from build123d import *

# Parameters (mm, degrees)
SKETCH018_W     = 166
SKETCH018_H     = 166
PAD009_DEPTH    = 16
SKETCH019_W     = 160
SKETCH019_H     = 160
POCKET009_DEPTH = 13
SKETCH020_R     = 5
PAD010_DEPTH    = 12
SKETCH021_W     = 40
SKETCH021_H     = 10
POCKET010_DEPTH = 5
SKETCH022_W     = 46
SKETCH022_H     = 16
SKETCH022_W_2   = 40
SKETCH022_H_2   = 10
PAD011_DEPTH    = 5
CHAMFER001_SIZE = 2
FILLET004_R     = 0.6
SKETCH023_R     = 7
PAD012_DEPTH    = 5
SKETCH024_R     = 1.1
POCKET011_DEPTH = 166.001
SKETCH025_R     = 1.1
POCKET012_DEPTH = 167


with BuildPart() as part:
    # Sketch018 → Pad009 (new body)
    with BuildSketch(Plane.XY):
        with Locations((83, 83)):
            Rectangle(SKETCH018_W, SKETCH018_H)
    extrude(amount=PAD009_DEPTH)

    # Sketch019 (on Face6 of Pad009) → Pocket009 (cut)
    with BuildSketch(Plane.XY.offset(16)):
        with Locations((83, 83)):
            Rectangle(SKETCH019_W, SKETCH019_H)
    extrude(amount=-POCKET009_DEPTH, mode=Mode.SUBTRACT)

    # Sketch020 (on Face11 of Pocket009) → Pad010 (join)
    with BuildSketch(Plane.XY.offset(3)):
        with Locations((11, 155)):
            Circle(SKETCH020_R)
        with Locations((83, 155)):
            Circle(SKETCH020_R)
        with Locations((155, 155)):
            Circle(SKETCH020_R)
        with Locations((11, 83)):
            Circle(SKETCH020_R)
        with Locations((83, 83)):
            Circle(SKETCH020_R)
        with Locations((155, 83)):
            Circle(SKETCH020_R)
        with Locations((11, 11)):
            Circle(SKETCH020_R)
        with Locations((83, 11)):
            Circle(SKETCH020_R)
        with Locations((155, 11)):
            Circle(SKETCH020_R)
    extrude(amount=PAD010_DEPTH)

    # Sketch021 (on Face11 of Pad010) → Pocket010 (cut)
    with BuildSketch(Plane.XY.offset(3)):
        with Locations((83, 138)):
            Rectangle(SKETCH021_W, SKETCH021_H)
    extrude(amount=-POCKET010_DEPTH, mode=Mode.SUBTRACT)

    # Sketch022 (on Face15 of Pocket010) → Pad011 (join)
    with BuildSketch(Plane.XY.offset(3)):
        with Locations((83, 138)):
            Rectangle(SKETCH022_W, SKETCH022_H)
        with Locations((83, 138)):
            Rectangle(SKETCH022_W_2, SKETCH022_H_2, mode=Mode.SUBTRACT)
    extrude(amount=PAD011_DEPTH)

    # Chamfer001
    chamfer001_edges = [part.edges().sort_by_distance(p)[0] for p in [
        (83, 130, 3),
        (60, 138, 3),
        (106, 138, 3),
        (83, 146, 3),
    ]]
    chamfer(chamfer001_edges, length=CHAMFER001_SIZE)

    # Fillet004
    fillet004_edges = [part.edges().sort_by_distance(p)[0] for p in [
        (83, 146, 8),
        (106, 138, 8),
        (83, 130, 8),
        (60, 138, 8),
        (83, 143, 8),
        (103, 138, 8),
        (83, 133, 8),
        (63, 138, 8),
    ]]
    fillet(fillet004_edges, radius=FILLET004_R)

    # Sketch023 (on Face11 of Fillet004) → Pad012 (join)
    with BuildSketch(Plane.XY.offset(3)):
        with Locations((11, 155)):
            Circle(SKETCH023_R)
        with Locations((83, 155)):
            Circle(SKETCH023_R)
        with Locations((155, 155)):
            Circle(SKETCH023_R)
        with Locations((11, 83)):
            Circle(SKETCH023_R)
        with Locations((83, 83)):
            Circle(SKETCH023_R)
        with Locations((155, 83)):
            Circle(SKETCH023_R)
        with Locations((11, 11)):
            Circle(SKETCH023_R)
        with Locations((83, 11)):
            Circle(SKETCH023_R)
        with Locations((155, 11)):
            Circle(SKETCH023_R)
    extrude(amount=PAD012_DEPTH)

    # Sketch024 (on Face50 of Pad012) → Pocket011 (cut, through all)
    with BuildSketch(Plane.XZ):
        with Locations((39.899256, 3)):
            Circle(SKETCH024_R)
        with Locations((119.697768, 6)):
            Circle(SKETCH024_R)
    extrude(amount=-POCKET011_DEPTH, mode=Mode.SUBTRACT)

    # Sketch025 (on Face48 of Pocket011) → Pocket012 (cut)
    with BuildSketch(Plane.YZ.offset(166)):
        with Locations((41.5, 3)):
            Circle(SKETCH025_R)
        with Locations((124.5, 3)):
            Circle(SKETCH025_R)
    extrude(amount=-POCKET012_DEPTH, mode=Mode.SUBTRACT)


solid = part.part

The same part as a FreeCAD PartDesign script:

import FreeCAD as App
import Part
import Sketcher
from FreeCAD import Vector
Q = App.Units.Quantity


def edges_at(feature, points):
    """Names of the edges that pass closest to the given points."""
    edges = feature.Shape.Edges
    near = lambda p: min(range(len(edges)), key=lambda i: edges[i].distToShape(Part.Vertex(*p))[0])
    return sorted({f"Edge{near(p) + 1}" for p in points})


def add_polygon(sketch, points):
    """Adds a closed chain of lines whose ends are joined by coincident constraints."""
    first, n = sketch.GeometryCount, len(points)
    for a, b in zip(points, points[1:] + points[:1]):
        sketch.addGeometry(Part.LineSegment(App.Vector(*a, 0), App.Vector(*b, 0)), False)
    for i in range(n):
        sketch.addConstraint(Sketcher.Constraint("Coincident", first + i, 2, first + (i + 1) % n, 1))

doc = App.newDocument("Part")
body = doc.addObject("PartDesign::Body", "Body")

# Sketch on XY plane
sketch1 = body.newObject("Sketcher::SketchObject", "Sketch")
sketch1.AttachmentSupport = (doc.getObject("XY_Plane"), [""])
sketch1.MapMode = "FlatFace"
add_polygon(sketch1, [(0, 166), (0, 0), (166, 0), (166, 166)])  # lines 0-3
sketch1.addConstraint(Sketcher.Constraint("Vertical", 0))
sketch1.addConstraint(Sketcher.Constraint("Horizontal", 1))
sketch1.addConstraint(Sketcher.Constraint("Vertical", 2))
sketch1.addConstraint(Sketcher.Constraint("Horizontal", 3))
sketch1.addConstraint(Sketcher.Constraint("Coincident", 0, 2, -1, 1))
sketch1.addConstraint(Sketcher.Constraint("Equal", 3, 0))
sketch1.addConstraint(Sketcher.Constraint("DistanceX", 1, 1, 1, 2, Q("166 mm")))
pad1 = body.newObject("PartDesign::Pad", "Pad")
pad1.Profile = sketch1
pad1.Length = 16

# Sketch on XY plane
sketch2 = body.newObject("Sketcher::SketchObject", "Sketch001")
sketch2.AttachmentSupport = (doc.getObject("XY_Plane"), [""])
sketch2.MapMode = "FlatFace"
sketch2.AttachmentOffset = App.Placement(Vector(0, 0, 16), App.Rotation())
add_polygon(sketch2, [(3, 163), (3, 3), (163, 3), (163, 163)])  # lines 0-3
sketch2.addConstraint(Sketcher.Constraint("Vertical", 0))
sketch2.addConstraint(Sketcher.Constraint("Horizontal", 1))
sketch2.addConstraint(Sketcher.Constraint("Vertical", 2))
sketch2.addConstraint(Sketcher.Constraint("Horizontal", 3))
sketch2.addConstraint(Sketcher.Constraint("Equal", 3, 0))
sketch2.addConstraint(Sketcher.Constraint("DistanceX", 1, 1, 1, 2, Q("160 mm")))
sketch2.addConstraint(Sketcher.Constraint("DistanceX", -1, 1, 0, 2, Q("3 mm")))
sketch2.addConstraint(Sketcher.Constraint("DistanceY", -1, 1, 0, 2, Q("3 mm")))
pocket1 = body.newObject("PartDesign::Pocket", "Pocket")
pocket1.Profile = sketch2
pocket1.Length = 13

# Sketch on XY plane
sketch3 = body.newObject("Sketcher::SketchObject", "Sketch002")
sketch3.AttachmentSupport = (doc.getObject("XY_Plane"), [""])
sketch3.MapMode = "FlatFace"
sketch3.AttachmentOffset = App.Placement(Vector(0, 0, 3), App.Rotation())
sketch3.addGeometry(Part.Circle(Vector(11, 155, 0), Vector(0, 0, 1), 5), False)
sketch3.addGeometry(Part.Circle(Vector(83, 155, 0), Vector(0, 0, 1), 5), False)
sketch3.addGeometry(Part.Circle(Vector(155, 155, 0), Vector(0, 0, 1), 5), False)
sketch3.addGeometry(Part.Circle(Vector(11, 83, 0), Vector(0, 0, 1), 5), False)
sketch3.addGeometry(Part.Circle(Vector(83, 83, 0), Vector(0, 0, 1), 5), False)
sketch3.addGeometry(Part.Circle(Vector(155, 83, 0), Vector(0, 0, 1), 5), False)
sketch3.addGeometry(Part.Circle(Vector(11, 11, 0), Vector(0, 0, 1), 5), False)
sketch3.addGeometry(Part.Circle(Vector(83, 11, 0), Vector(0, 0, 1), 5), False)
sketch3.addGeometry(Part.Circle(Vector(155, 11, 0), Vector(0, 0, 1), 5), False)
sketch3.addConstraint(Sketcher.Constraint("Equal", 0, 1))
sketch3.addConstraint(Sketcher.Constraint("Equal", 1, 2))
sketch3.addConstraint(Sketcher.Constraint("Equal", 2, 3))
sketch3.addConstraint(Sketcher.Constraint("Equal", 3, 4))
sketch3.addConstraint(Sketcher.Constraint("Equal", 4, 5))
sketch3.addConstraint(Sketcher.Constraint("Equal", 5, 6))
sketch3.addConstraint(Sketcher.Constraint("Equal", 6, 7))
sketch3.addConstraint(Sketcher.Constraint("Equal", 7, 8))
sketch3.addConstraint(Sketcher.Constraint("Horizontal", 0, 3, 1, 3))
sketch3.addConstraint(Sketcher.Constraint("Horizontal", 1, 3, 2, 3))
sketch3.addConstraint(Sketcher.Constraint("Horizontal", 3, 3, 4, 3))
sketch3.addConstraint(Sketcher.Constraint("Horizontal", 4, 3, 5, 3))
sketch3.addConstraint(Sketcher.Constraint("Horizontal", 6, 3, 7, 3))
sketch3.addConstraint(Sketcher.Constraint("Horizontal", 7, 3, 8, 3))
sketch3.addConstraint(Sketcher.Constraint("Vertical", 0, 3, 3, 3))
sketch3.addConstraint(Sketcher.Constraint("Vertical", 1, 3, 4, 3))
sketch3.addConstraint(Sketcher.Constraint("Vertical", 2, 3, 5, 3))
sketch3.addConstraint(Sketcher.Constraint("Vertical", 3, 3, 6, 3))
sketch3.addConstraint(Sketcher.Constraint("Vertical", 4, 3, 7, 3))
sketch3.addConstraint(Sketcher.Constraint("Vertical", 5, 3, 8, 3))
sketch3.addConstraint(Sketcher.Constraint("Diameter", 0, Q("10 mm")))
sketch3.addConstraint(Sketcher.Constraint("DistanceX", -1, 1, 0, 3, Q("11 mm")))
sketch3.addConstraint(Sketcher.Constraint("DistanceY", -1, 1, 0, 3, Q("155 mm")))
sketch3.addConstraint(Sketcher.Constraint("DistanceX", -1, 1, 1, 3, Q("83 mm")))
sketch3.addConstraint(Sketcher.Constraint("DistanceX", -1, 1, 2, 3, Q("155 mm")))
sketch3.addConstraint(Sketcher.Constraint("DistanceY", -1, 1, 3, 3, Q("83 mm")))
sketch3.addConstraint(Sketcher.Constraint("DistanceY", -1, 1, 6, 3, Q("11 mm")))
pad2 = body.newObject("PartDesign::Pad", "Pad001")
pad2.Profile = sketch3
pad2.Length = 12

# Sketch on XY plane
sketch4 = body.newObject("Sketcher::SketchObject", "Sketch003")
sketch4.AttachmentSupport = (doc.getObject("XY_Plane"), [""])
sketch4.MapMode = "FlatFace"
sketch4.AttachmentOffset = App.Placement(Vector(0, 0, 3), App.Rotation())
add_polygon(sketch4, [(63, 143), (63, 133), (103, 133), (103, 143)])  # lines 0-3
sketch4.addConstraint(Sketcher.Constraint("Vertical", 0))
sketch4.addConstraint(Sketcher.Constraint("Horizontal", 1))
sketch4.addConstraint(Sketcher.Constraint("Vertical", 2))
sketch4.addConstraint(Sketcher.Constraint("Horizontal", 3))
sketch4.addConstraint(Sketcher.Constraint("DistanceX", 1, 1, 1, 2, Q("40 mm")))
sketch4.addConstraint(Sketcher.Constraint("DistanceY", 0, 2, 0, 1, Q("10 mm")))
sketch4.addConstraint(Sketcher.Constraint("DistanceX", -1, 1, 0, 2, Q("63 mm")))
sketch4.addConstraint(Sketcher.Constraint("DistanceY", -1, 1, 0, 2, Q("133 mm")))
pocket2 = body.newObject("PartDesign::Pocket", "Pocket001")
pocket2.Profile = sketch4
pocket2.Length = 5

# Sketch on XY plane
sketch5 = body.newObject("Sketcher::SketchObject", "Sketch004")
sketch5.AttachmentSupport = (doc.getObject("XY_Plane"), [""])
sketch5.MapMode = "FlatFace"
sketch5.AttachmentOffset = App.Placement(Vector(0, 0, 3), App.Rotation())
add_polygon(sketch5, [(60, 146), (60, 130), (106, 130), (106, 146)])  # lines 0-3
add_polygon(sketch5, [(103, 133), (63, 133), (63, 143), (103, 143)])  # lines 4-7
sketch5.addConstraint(Sketcher.Constraint("Vertical", 0))
sketch5.addConstraint(Sketcher.Constraint("Horizontal", 1))
sketch5.addConstraint(Sketcher.Constraint("Vertical", 2))
sketch5.addConstraint(Sketcher.Constraint("Horizontal", 3))
sketch5.addConstraint(Sketcher.Constraint("Horizontal", 4))
sketch5.addConstraint(Sketcher.Constraint("Vertical", 5))
sketch5.addConstraint(Sketcher.Constraint("Horizontal", 6))
sketch5.addConstraint(Sketcher.Constraint("Vertical", 7))
sketch5.addConstraint(Sketcher.Constraint("DistanceX", 1, 1, 1, 2, Q("46 mm")))
sketch5.addConstraint(Sketcher.Constraint("DistanceX", 4, 2, 4, 1, Q("40 mm")))
sketch5.addConstraint(Sketcher.Constraint("DistanceY", 0, 2, 0, 1, Q("16 mm")))
sketch5.addConstraint(Sketcher.Constraint("DistanceY", 5, 1, 5, 2, Q("10 mm")))
sketch5.addConstraint(Sketcher.Constraint("DistanceX", -1, 1, 0, 2, Q("60 mm")))
sketch5.addConstraint(Sketcher.Constraint("DistanceY", -1, 1, 0, 2, Q("130 mm")))
sketch5.addConstraint(Sketcher.Constraint("DistanceX", -1, 1, 4, 2, Q("63 mm")))
sketch5.addConstraint(Sketcher.Constraint("DistanceY", -1, 1, 4, 2, Q("133 mm")))
pad3 = body.newObject("PartDesign::Pad", "Pad002")
pad3.Profile = sketch5
pad3.Length = 5
doc.recompute()

chamfer = body.newObject("PartDesign::Chamfer", "Chamfer")
chamfer.Base = (pad3, edges_at(pad3, [
    (83, 130, 3),
    (60, 138, 3),
    (106, 138, 3),
    (83, 146, 3),
]))
chamfer.Size = 2
doc.recompute()

fillet = body.newObject("PartDesign::Fillet", "Fillet")
fillet.Base = (chamfer, edges_at(chamfer, [
    (83, 146, 8),
    (106, 138, 8),
    (83, 130, 8),
    (60, 138, 8),
    (83, 143, 8),
    (103, 138, 8),
    (83, 133, 8),
    (63, 138, 8),
]))
fillet.Radius = 0.6

# Sketch on XY plane
sketch6 = body.newObject("Sketcher::SketchObject", "Sketch005")
sketch6.AttachmentSupport = (doc.getObject("XY_Plane"), [""])
sketch6.MapMode = "FlatFace"
sketch6.AttachmentOffset = App.Placement(Vector(0, 0, 3), App.Rotation())
sketch6.addGeometry(Part.Circle(Vector(11, 155, 0), Vector(0, 0, 1), 7), False)
sketch6.addGeometry(Part.Circle(Vector(83, 155, 0), Vector(0, 0, 1), 7), False)
sketch6.addGeometry(Part.Circle(Vector(155, 155, 0), Vector(0, 0, 1), 7), False)
sketch6.addGeometry(Part.Circle(Vector(11, 83, 0), Vector(0, 0, 1), 7), False)
sketch6.addGeometry(Part.Circle(Vector(83, 83, 0), Vector(0, 0, 1), 7), False)
sketch6.addGeometry(Part.Circle(Vector(155, 83, 0), Vector(0, 0, 1), 7), False)
sketch6.addGeometry(Part.Circle(Vector(11, 11, 0), Vector(0, 0, 1), 7), False)
sketch6.addGeometry(Part.Circle(Vector(83, 11, 0), Vector(0, 0, 1), 7), False)
sketch6.addGeometry(Part.Circle(Vector(155, 11, 0), Vector(0, 0, 1), 7), False)
sketch6.addConstraint(Sketcher.Constraint("Equal", 0, 1))
sketch6.addConstraint(Sketcher.Constraint("Equal", 1, 2))
sketch6.addConstraint(Sketcher.Constraint("Equal", 2, 3))
sketch6.addConstraint(Sketcher.Constraint("Equal", 3, 4))
sketch6.addConstraint(Sketcher.Constraint("Equal", 4, 5))
sketch6.addConstraint(Sketcher.Constraint("Equal", 5, 6))
sketch6.addConstraint(Sketcher.Constraint("Equal", 6, 7))
sketch6.addConstraint(Sketcher.Constraint("Equal", 7, 8))
sketch6.addConstraint(Sketcher.Constraint("Horizontal", 0, 3, 1, 3))
sketch6.addConstraint(Sketcher.Constraint("Horizontal", 1, 3, 2, 3))
sketch6.addConstraint(Sketcher.Constraint("Horizontal", 3, 3, 4, 3))
sketch6.addConstraint(Sketcher.Constraint("Horizontal", 4, 3, 5, 3))
sketch6.addConstraint(Sketcher.Constraint("Horizontal", 6, 3, 7, 3))
sketch6.addConstraint(Sketcher.Constraint("Horizontal", 7, 3, 8, 3))
sketch6.addConstraint(Sketcher.Constraint("Vertical", 0, 3, 3, 3))
sketch6.addConstraint(Sketcher.Constraint("Vertical", 1, 3, 4, 3))
sketch6.addConstraint(Sketcher.Constraint("Vertical", 2, 3, 5, 3))
sketch6.addConstraint(Sketcher.Constraint("Vertical", 3, 3, 6, 3))
sketch6.addConstraint(Sketcher.Constraint("Vertical", 4, 3, 7, 3))
sketch6.addConstraint(Sketcher.Constraint("Vertical", 5, 3, 8, 3))
sketch6.addConstraint(Sketcher.Constraint("Diameter", 0, Q("14 mm")))
sketch6.addConstraint(Sketcher.Constraint("DistanceX", -1, 1, 0, 3, Q("11 mm")))
sketch6.addConstraint(Sketcher.Constraint("DistanceY", -1, 1, 0, 3, Q("155 mm")))
sketch6.addConstraint(Sketcher.Constraint("DistanceX", -1, 1, 1, 3, Q("83 mm")))
sketch6.addConstraint(Sketcher.Constraint("DistanceX", -1, 1, 2, 3, Q("155 mm")))
sketch6.addConstraint(Sketcher.Constraint("DistanceY", -1, 1, 3, 3, Q("83 mm")))
sketch6.addConstraint(Sketcher.Constraint("DistanceY", -1, 1, 6, 3, Q("11 mm")))
pad4 = body.newObject("PartDesign::Pad", "Pad003")
pad4.Profile = sketch6
pad4.Length = 5

# Sketch on XZ plane
sketch7 = body.newObject("Sketcher::SketchObject", "Sketch006")
sketch7.AttachmentSupport = (doc.getObject("XZ_Plane"), [""])
sketch7.MapMode = "FlatFace"
sketch7.addGeometry(Part.Circle(Vector(39.9, 3, 0), Vector(0, 0, 1), 1.1), False)
sketch7.addGeometry(Part.Circle(Vector(119.7, 6, 0), Vector(0, 0, 1), 1.1), False)
sketch7.addConstraint(Sketcher.Constraint("Equal", 0, 1))
sketch7.addConstraint(Sketcher.Constraint("Diameter", 0, Q("2.2 mm")))
sketch7.addConstraint(Sketcher.Constraint("DistanceY", -1, 1, 0, 3, Q("3 mm")))
sketch7.addConstraint(Sketcher.Constraint("DistanceY", -1, 1, 1, 3, Q("6 mm")))
sketch7.addConstraint(Sketcher.Constraint("DistanceX", 0, 3, 1, 3, Q("79.798512 mm")))
sketch7.addConstraint(Sketcher.Constraint("DistanceX", -1, 1, 0, 3, Q("39.899256 mm")))
pocket3 = body.newObject("PartDesign::Pocket", "Pocket002")
pocket3.Profile = sketch7
pocket3.Type = "ThroughAll"

# Sketch on YZ plane
sketch8 = body.newObject("Sketcher::SketchObject", "Sketch007")
sketch8.AttachmentSupport = (doc.getObject("YZ_Plane"), [""])
sketch8.MapMode = "FlatFace"
sketch8.AttachmentOffset = App.Placement(Vector(0, 0, 166), App.Rotation())
sketch8.addGeometry(Part.Circle(Vector(41.5, 3, 0), Vector(0, 0, 1), 1.1), False)
sketch8.addGeometry(Part.Circle(Vector(124.5, 3, 0), Vector(0, 0, 1), 1.1), False)
sketch8.addConstraint(Sketcher.Constraint("Equal", 0, 1))
sketch8.addConstraint(Sketcher.Constraint("Horizontal", 0, 3, 1, 3))
sketch8.addConstraint(Sketcher.Constraint("Diameter", 0, Q("2.2 mm")))
sketch8.addConstraint(Sketcher.Constraint("DistanceY", -1, 1, 0, 3, Q("3 mm")))
sketch8.addConstraint(Sketcher.Constraint("DistanceX", 0, 3, 1, 3, Q("83 mm")))
sketch8.addConstraint(Sketcher.Constraint("DistanceX", -1, 1, 0, 3, Q("41.5 mm")))
pocket4 = body.newObject("PartDesign::Pocket", "Pocket003")
pocket4.Profile = sketch8
pocket4.Length = 167

doc.recompute()
